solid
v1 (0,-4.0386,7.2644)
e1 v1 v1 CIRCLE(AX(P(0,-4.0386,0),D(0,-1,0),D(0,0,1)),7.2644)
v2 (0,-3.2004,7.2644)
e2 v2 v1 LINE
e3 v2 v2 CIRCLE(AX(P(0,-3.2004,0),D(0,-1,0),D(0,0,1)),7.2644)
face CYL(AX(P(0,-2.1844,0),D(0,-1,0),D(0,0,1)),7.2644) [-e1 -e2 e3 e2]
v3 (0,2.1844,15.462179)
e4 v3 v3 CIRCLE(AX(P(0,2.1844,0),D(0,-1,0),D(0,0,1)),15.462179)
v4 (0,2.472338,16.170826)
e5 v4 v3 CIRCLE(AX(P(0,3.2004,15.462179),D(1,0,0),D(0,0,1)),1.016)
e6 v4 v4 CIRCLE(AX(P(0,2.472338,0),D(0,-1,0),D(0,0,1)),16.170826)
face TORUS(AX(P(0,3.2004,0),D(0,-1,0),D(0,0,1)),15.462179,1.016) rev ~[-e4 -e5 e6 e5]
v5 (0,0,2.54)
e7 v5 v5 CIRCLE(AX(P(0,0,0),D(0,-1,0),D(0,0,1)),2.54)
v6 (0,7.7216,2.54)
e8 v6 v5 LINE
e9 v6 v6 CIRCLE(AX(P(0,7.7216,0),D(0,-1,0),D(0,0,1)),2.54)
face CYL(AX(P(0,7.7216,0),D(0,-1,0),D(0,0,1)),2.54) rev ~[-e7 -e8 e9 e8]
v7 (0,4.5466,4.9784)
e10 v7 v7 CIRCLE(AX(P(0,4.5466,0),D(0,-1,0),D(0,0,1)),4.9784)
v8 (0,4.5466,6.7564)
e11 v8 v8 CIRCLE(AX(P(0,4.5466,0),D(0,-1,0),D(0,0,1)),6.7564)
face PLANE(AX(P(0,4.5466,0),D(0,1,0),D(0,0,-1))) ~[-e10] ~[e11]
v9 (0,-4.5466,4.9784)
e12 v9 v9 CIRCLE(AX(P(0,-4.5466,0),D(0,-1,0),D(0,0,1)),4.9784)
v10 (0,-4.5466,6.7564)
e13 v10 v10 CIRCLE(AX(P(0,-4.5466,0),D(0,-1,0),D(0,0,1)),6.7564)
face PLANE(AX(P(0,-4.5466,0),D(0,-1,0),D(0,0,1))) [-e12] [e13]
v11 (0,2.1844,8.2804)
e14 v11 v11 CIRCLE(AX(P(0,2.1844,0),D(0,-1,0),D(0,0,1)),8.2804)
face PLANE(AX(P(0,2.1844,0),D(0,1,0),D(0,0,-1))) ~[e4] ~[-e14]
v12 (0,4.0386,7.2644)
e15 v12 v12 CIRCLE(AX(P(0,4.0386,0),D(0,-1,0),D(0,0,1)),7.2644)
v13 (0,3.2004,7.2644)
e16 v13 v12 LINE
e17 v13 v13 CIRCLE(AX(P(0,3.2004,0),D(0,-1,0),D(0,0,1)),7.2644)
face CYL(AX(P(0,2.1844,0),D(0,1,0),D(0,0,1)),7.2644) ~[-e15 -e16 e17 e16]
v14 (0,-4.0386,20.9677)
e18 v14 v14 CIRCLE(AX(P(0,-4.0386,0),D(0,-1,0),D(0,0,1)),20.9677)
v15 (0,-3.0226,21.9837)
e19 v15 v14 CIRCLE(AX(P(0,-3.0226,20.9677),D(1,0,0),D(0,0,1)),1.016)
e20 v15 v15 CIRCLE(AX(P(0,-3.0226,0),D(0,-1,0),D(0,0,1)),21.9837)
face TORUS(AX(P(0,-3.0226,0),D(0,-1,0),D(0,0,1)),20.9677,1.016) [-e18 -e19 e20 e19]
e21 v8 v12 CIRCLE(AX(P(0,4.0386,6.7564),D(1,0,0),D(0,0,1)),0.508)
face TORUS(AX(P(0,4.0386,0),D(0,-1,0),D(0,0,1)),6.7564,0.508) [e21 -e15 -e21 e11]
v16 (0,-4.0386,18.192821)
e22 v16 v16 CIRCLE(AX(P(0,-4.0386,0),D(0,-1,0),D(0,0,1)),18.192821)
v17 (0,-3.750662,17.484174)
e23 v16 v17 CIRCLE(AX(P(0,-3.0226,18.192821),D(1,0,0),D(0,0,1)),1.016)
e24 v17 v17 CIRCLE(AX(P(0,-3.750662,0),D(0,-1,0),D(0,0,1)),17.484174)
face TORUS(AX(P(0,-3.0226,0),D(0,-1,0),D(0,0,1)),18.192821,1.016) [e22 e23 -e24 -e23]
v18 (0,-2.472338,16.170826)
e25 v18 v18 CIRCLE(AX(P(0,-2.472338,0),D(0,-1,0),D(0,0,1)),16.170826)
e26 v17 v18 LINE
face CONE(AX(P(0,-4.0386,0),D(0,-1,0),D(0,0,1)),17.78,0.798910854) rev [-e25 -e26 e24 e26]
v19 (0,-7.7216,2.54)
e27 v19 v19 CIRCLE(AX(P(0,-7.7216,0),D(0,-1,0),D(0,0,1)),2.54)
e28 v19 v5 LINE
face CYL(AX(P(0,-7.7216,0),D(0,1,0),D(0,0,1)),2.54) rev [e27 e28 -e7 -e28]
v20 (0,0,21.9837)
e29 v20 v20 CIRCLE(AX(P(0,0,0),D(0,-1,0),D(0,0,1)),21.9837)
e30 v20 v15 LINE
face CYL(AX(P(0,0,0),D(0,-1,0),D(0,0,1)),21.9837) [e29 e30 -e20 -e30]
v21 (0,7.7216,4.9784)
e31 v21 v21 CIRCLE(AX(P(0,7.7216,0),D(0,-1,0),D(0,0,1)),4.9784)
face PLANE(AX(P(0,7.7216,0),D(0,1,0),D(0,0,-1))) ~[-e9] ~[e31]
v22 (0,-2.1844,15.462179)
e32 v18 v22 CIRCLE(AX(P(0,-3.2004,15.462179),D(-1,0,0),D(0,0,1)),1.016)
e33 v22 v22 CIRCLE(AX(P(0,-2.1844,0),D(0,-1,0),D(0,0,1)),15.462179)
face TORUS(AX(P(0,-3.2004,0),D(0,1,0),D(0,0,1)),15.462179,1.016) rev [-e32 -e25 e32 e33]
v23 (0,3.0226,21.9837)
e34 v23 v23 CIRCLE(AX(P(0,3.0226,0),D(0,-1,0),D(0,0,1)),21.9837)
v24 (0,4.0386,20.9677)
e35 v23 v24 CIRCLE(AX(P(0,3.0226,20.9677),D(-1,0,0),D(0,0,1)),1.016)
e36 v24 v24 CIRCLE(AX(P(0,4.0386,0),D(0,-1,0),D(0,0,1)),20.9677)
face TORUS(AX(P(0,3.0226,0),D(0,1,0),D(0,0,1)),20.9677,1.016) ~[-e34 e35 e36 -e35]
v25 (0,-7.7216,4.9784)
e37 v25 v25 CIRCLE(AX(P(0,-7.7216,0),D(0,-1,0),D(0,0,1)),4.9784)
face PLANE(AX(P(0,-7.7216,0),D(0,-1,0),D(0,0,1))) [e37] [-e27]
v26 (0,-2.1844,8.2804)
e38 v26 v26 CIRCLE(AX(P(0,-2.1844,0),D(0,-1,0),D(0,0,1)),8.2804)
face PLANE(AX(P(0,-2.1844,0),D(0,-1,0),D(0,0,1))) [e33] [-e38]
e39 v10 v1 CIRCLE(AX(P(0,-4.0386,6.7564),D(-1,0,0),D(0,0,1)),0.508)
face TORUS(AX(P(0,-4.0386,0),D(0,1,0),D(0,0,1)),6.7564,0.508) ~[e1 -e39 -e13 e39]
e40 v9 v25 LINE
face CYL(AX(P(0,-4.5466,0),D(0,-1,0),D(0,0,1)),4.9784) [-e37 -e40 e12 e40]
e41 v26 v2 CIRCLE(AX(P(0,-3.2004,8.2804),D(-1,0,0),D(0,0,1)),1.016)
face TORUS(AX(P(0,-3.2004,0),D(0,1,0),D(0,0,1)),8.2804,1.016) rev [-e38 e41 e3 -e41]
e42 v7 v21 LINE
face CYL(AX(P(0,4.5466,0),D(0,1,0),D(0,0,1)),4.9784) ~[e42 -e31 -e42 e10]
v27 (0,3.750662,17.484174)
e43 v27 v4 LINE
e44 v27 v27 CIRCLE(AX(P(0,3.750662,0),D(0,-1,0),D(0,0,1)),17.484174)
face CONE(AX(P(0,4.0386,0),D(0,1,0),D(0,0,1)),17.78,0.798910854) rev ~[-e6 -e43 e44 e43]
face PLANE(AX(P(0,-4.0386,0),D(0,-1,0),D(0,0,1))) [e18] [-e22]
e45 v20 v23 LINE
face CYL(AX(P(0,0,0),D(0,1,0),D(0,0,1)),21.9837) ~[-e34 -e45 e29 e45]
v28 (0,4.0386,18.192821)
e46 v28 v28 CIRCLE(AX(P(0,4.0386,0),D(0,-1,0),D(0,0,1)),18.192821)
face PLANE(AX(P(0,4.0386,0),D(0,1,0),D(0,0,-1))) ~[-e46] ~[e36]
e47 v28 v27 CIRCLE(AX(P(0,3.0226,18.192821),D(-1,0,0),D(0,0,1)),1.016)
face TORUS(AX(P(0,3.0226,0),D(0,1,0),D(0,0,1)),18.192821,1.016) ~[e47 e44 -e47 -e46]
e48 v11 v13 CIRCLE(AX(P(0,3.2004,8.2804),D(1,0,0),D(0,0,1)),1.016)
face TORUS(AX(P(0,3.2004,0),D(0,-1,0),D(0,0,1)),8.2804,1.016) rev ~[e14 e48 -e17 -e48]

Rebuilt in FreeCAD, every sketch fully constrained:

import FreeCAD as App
import Part
import Sketcher

V = App.Vector
Q = App.Units.Quantity


def edges_at(feature, points):
    """Names of the edges that pass closest to the given points."""
    edges = feature.Shape.Edges
    near = lambda p: min(range(len(edges)), key=lambda i: edges[i].distToShape(Part.Vertex(*p))[0])
    return sorted({f"Edge{near(p) + 1}" for p in points})

doc = App.newDocument("Part")
params = doc.addObject("Spreadsheet::Sheet", "Params")
for row, (alias, value) in enumerate([
    ("sketch1_height", "0.09 in"),
    ("sketch1_width", "0.304 in"),
    ("sketch1_width2", "0.159 in"),
    ("sketch1_width3", "0.093 in"),
    ("sketch1_width4", "0.125 in"),
    ("revolution_angle", "360 deg"),
    ("fillet_radius", "0.04 in"),
    ("fillet2_radius", "0.02 in"),
], start=1):
    params.set(f"A{row}", alias)
    params.set(f"B{row}", "=" + value)
    params.setAlias(f"B{row}", alias)

body = doc.addObject("PartDesign::Body", "Body")

# Sketch on YZ plane
sketch1 = doc.addObject("Sketcher::SketchObject", "Sketch")
body.addObject(sketch1)
sketch1.AttachmentSupport = (doc.YZ_Plane, [""])
sketch1.MapMode = "FlatFace"
sketch1.addGeometry([
    Part.LineSegment(V(-7.7216, 4.9784, 0), V(-7.7216, 2.54, 0)),  # 0
    Part.LineSegment(V(-7.7216, 2.54, 0), V(0, 2.54, 0)),  # 1
    Part.LineSegment(V(0, 2.54, 0), V(0, 21.9837, 0)),  # 2
    Part.LineSegment(V(0, 21.9837, 0), V(-4.0386, 21.9837, 0)),  # 3
    Part.LineSegment(V(-4.0386, 21.9837, 0), V(-4.0386, 17.78, 0)),  # 4
    Part.LineSegment(V(-4.0386, 17.78, 0), V(-2.1844, 15.875, 0)),  # 5
    Part.LineSegment(V(-2.1844, 15.875, 0), V(-2.1844, 7.2644, 0)),  # 6
    Part.LineSegment(V(-2.1844, 7.2644, 0), V(-4.5466, 7.2644, 0)),  # 7
    Part.LineSegment(V(-4.5466, 7.2644, 0), V(-4.5466, 4.9784, 0)),  # 8
    Part.LineSegment(V(-4.5466, 4.9784, 0), V(-7.7216, 4.9784, 0)),  # 9
], False)
sketch1.addConstraint([
    Sketcher.Constraint("Coincident", 0, 2, 1, 1),
    Sketcher.Constraint("Coincident", 1, 2, 2, 1),
    Sketcher.Constraint("Coincident", 2, 2, 3, 1),
    Sketcher.Constraint("Coincident", 3, 2, 4, 1),
    Sketcher.Constraint("Coincident", 4, 2, 5, 1),
    Sketcher.Constraint("Coincident", 5, 2, 6, 1),
    Sketcher.Constraint("Coincident", 6, 2, 7, 1),
    Sketcher.Constraint("Coincident", 7, 2, 8, 1),
    Sketcher.Constraint("Coincident", 8, 2, 9, 1),
    Sketcher.Constraint("Coincident", 9, 2, 0, 1),
    Sketcher.Constraint("Vertical", 0),
    Sketcher.Constraint("Horizontal", 1),
    Sketcher.Constraint("Vertical", 2),
    Sketcher.Constraint("Horizontal", 3),
    Sketcher.Constraint("Vertical", 4),
    Sketcher.Constraint("Vertical", 6),
    Sketcher.Constraint("Horizontal", 7),
    Sketcher.Constraint("Vertical", 8),
    Sketcher.Constraint("Horizontal", 9),
    Sketcher.Constraint("PointOnObject", 1, 2, -2),
    Sketcher.Constraint("DistanceY", 8, 2, 8, 1, Q("0.09 in")),
    Sketcher.Constraint("DistanceY", -1, 1, 0, 2, Q("0.1 in")),
    Sketcher.Constraint("DistanceY", -1, 1, 4, 2, Q("0.7 in")),
    Sketcher.Constraint("DistanceX", 1, 1, 1, 2, Q("0.304 in")),
    Sketcher.Constraint("DistanceX", 3, 2, 3, 1, Q("0.159 in")),
    Sketcher.Constraint("DistanceX", 7, 2, 7, 1, Q("0.093 in")),
    Sketcher.Constraint("DistanceX", 9, 2, 9, 1, Q("0.125 in")),
    Sketcher.Constraint("DistanceY", 0, 2, 0, 1, Q("0.096 in")),
    Sketcher.Constraint("DistanceY", 6, 2, 6, 1, Q("0.339 in")),
    Sketcher.Constraint("DistanceY", 2, 1, 2, 2, Q("0.7655 in")),
])
sketch1.setExpression("Constraints[20]", "Params.sketch1_height")
sketch1.setExpression("Constraints[23]", "Params.sketch1_width")
sketch1.setExpression("Constraints[24]", "Params.sketch1_width2")
sketch1.setExpression("Constraints[25]", "Params.sketch1_width3")
sketch1.setExpression("Constraints[26]", "Params.sketch1_width4")
revolution = doc.addObject("PartDesign::Revolution", "Revolution")
body.addObject(revolution)
revolution.Profile = sketch1
revolution.ReferenceAxis = (sketch1, ["H_Axis"])
revolution.setExpression("Angle", "Params.revolution_angle")
doc.recompute()

fillet = doc.addObject("PartDesign::Fillet", "Fillet")
body.addObject(fillet)
fillet.Base = (revolution, edges_at(revolution, [
    (0, -2.184, -7.264),
    (0, -2.184, -15.875),
    (0, -4.039, -17.78),
    (0, -4.039, -21.984),
]))
fillet.setExpression("Radius", "Params.fillet_radius")
doc.recompute()

fillet2 = doc.addObject("PartDesign::Fillet", "Fillet001")
body.addObject(fillet2)
fillet2.Base = (fillet, edges_at(fillet, [(0, -4.547, -7.264)]))
fillet2.setExpression("Radius", "Params.fillet2_radius")
body2 = doc.addObject("PartDesign::Body", "Body001")
doc.recompute()

body2.BaseFeature = body
doc.recompute()

mirroring = doc.addObject("Part::Mirroring", "Mirroring")
mirroring.Source = body
mirroring.Base = V(0, 0, 0)
mirroring.Normal = V(0, -1, 0)
body3 = doc.addObject("PartDesign::Body", "Body002")
body3.BaseFeature = mirroring
boolean = doc.addObject("PartDesign::Boolean", "Boolean")
body2.addObject(boolean)
boolean.Type = "Fuse"
boolean.addObjects([body3])
doc.recompute()
mirroring.Visibility = False

doc.recompute()
